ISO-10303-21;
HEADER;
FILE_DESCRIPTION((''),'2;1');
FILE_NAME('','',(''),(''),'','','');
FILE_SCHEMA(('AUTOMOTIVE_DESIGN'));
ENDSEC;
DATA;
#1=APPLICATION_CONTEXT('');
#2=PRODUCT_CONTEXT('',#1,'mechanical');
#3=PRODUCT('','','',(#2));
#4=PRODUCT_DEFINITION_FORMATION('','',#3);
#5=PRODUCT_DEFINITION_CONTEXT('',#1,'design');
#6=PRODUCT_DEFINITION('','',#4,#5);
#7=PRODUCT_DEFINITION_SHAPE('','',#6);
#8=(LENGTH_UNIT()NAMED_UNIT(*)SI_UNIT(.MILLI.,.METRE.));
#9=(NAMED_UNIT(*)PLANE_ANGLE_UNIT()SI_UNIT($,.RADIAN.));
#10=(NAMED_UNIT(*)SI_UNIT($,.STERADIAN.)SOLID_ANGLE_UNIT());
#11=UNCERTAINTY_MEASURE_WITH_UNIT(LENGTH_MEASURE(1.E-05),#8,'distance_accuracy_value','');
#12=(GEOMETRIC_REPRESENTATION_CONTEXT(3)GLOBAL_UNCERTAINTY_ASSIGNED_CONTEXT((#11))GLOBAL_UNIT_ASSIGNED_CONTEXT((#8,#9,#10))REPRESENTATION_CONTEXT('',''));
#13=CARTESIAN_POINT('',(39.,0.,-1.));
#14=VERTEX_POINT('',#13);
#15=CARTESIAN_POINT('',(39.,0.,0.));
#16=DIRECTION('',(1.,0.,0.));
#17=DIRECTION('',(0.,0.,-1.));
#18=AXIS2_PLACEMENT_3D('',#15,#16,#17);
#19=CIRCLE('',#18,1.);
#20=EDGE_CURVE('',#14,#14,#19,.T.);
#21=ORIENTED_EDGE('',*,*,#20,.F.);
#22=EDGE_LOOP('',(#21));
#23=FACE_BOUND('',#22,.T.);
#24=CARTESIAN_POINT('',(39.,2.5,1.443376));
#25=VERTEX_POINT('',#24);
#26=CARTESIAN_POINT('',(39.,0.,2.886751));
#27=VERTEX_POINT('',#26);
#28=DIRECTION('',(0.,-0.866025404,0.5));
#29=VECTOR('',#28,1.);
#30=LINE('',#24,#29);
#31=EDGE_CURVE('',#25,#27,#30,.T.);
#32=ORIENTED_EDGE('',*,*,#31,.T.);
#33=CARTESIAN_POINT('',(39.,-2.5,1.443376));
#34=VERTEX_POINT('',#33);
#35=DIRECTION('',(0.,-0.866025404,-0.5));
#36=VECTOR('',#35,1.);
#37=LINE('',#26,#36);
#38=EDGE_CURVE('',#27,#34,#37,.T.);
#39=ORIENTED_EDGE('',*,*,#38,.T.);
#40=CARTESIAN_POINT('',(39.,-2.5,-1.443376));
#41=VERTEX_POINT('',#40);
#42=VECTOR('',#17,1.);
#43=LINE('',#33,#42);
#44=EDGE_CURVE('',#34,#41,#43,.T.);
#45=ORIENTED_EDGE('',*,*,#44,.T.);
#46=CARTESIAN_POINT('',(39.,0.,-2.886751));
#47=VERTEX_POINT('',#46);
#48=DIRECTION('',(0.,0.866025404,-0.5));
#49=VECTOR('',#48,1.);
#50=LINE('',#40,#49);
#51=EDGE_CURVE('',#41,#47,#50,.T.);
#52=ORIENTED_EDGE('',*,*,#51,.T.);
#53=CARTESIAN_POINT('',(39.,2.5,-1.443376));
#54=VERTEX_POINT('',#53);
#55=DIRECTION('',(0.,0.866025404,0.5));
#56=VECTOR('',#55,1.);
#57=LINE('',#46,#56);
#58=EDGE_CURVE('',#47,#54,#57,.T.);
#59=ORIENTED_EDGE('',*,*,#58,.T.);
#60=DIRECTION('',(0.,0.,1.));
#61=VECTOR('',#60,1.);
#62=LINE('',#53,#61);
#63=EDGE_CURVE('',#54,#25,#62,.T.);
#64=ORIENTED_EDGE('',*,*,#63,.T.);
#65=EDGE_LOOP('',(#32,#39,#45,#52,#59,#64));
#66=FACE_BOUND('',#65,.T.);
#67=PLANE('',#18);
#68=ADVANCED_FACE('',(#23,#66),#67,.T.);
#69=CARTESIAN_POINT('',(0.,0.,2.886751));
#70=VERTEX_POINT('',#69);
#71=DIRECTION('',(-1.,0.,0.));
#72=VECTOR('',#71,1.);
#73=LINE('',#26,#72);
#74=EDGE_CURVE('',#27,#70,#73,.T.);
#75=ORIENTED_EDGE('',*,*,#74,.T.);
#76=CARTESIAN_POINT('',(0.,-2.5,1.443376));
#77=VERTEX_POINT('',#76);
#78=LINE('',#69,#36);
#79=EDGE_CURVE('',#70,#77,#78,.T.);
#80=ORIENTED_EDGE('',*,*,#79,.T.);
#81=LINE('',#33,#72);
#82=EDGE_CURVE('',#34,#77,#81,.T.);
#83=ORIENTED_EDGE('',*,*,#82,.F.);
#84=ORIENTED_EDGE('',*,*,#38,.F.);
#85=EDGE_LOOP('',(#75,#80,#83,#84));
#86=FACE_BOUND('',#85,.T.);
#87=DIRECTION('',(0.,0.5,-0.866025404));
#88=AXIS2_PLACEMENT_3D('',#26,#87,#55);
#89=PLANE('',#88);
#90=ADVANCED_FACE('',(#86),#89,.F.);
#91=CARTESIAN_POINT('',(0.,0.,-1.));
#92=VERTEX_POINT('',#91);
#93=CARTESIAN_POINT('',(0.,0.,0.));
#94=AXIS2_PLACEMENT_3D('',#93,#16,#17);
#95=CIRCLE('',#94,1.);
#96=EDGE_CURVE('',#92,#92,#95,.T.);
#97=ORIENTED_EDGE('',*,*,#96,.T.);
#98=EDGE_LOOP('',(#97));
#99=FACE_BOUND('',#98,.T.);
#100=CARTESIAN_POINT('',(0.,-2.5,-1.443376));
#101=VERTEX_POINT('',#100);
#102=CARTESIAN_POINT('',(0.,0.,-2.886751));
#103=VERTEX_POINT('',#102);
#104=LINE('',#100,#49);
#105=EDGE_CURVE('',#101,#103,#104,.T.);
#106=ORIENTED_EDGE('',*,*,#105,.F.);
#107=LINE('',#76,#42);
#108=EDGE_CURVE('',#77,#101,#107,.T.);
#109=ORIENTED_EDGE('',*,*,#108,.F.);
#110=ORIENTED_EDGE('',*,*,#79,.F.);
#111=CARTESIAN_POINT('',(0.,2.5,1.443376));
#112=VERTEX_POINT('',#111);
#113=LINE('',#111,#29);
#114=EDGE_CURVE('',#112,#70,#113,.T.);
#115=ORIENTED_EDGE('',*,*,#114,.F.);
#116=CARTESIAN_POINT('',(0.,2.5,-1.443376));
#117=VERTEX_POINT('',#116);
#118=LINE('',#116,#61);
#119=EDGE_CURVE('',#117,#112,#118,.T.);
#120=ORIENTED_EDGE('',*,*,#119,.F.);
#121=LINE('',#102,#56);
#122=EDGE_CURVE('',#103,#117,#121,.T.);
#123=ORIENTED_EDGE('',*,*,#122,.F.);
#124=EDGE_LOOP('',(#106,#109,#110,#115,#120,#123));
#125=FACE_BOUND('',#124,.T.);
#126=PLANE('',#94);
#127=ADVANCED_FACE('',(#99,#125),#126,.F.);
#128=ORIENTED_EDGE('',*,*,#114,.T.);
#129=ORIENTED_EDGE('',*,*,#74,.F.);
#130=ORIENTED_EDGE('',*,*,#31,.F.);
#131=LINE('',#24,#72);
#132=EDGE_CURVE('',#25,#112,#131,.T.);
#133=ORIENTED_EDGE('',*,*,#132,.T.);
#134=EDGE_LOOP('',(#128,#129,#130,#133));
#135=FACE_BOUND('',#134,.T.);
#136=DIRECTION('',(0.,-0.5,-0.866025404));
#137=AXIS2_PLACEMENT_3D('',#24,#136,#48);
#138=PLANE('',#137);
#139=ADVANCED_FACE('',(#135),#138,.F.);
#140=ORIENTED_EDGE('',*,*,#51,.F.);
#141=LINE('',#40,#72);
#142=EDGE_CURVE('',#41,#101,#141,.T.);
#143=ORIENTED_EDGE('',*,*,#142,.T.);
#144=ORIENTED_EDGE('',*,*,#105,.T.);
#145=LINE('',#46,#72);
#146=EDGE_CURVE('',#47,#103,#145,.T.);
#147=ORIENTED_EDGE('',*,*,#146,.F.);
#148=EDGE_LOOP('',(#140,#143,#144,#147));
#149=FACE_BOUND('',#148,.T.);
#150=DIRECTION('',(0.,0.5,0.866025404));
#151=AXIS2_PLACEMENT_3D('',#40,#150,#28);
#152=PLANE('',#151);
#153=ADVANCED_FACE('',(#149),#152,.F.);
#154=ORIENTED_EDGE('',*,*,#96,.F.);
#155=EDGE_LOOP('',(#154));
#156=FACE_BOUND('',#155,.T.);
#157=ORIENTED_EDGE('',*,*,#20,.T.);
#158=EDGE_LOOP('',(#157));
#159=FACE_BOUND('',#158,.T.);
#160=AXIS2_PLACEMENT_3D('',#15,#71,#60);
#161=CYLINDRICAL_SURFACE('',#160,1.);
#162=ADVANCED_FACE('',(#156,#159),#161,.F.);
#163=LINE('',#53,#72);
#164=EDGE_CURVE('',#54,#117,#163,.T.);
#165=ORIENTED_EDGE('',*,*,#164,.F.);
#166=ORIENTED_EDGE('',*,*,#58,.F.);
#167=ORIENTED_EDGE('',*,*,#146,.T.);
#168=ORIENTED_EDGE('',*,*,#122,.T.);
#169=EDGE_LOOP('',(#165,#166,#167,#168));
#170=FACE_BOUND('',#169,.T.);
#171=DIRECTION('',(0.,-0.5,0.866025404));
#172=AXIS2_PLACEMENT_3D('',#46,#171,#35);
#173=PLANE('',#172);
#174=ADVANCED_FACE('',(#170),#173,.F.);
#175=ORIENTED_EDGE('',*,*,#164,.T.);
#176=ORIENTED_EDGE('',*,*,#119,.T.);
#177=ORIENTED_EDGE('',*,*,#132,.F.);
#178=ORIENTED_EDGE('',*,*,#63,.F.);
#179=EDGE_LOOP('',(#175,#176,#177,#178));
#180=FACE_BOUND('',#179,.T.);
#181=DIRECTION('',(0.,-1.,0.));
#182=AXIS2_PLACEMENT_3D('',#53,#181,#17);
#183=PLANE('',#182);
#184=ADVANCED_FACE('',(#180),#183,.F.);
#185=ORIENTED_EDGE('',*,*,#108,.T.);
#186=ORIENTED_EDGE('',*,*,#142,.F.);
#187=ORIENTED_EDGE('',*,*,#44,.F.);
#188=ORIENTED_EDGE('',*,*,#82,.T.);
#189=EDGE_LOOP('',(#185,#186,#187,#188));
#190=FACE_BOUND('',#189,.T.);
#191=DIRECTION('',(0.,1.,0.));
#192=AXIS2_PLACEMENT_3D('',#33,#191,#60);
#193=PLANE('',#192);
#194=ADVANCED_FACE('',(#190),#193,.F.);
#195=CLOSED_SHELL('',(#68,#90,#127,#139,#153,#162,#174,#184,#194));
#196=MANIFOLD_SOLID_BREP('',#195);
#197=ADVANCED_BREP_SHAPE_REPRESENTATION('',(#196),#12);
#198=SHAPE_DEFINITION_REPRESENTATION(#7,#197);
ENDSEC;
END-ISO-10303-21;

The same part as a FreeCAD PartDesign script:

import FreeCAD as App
import Part
import Sketcher
from FreeCAD import Vector
Q = App.Units.Quantity

doc = App.newDocument("Part")
body = doc.addObject("PartDesign::Body", "Body")

sketch1 = body.newObject("Sketcher::SketchObject", "Sketch")
sketch1.AttachmentSupport = (doc.getObject("YZ_Plane"), [""])
sketch1.MapMode = "FlatFace"
sketch1.addGeometry([
    Part.LineSegment(Vector(0, -2.9, 0), Vector(2.5, -1.4, 0)),
    Part.LineSegment(Vector(2.5, -1.4, 0), Vector(2.5, 1.4, 0)),
    Part.LineSegment(Vector(2.5, 1.4, 0), Vector(0, 2.9, 0)),
    Part.LineSegment(Vector(0, 2.9, 0), Vector(-2.5, 1.4, 0)),
    Part.LineSegment(Vector(-2.5, 1.4, 0), Vector(-2.5, -1.4, 0)),
    Part.LineSegment(Vector(-2.5, -1.4, 0), Vector(0, -2.9, 0)),
    Part.Circle(Vector(0, 0, 0), Vector(0, 0, 1), 1),
], False)
sketch1.addConstraint([
    Sketcher.Constraint("Coincident", 0, 2, 1, 1),
    Sketcher.Constraint("Coincident", 1, 2, 2, 1),
    Sketcher.Constraint("Coincident", 2, 2, 3, 1),
    Sketcher.Constraint("Coincident", 3, 2, 4, 1),
    Sketcher.Constraint("Coincident", 4, 2, 5, 1),
    Sketcher.Constraint("Coincident", 5, 2, 0, 1),
    Sketcher.Constraint("Vertical", 1),
    Sketcher.Constraint("Vertical", 4),
    Sketcher.Constraint("Coincident", 6, 3, -1, 1),
    Sketcher.Constraint("Symmetric", 0, 2, 3, 2, -1, 1),
    Sketcher.Constraint("Symmetric", 2, 2, 5, 2, -1, 1),
    Sketcher.Constraint("PointOnObject", 2, 2, -2),
    Sketcher.Constraint("Parallel", 2, 5),
    Sketcher.Constraint("Horizontal", 1, 2, 3, 2),
    Sketcher.Constraint("Diameter", 6, 2.0),
    Sketcher.Constraint("Angle", 0, Q("30 deg")),
    Sketcher.Constraint("DistanceX", 3, 2, 1, 2, 5.0),
    Sketcher.Constraint("DistanceY", 1, 1, 1, 2, 2.886751),
])
pad1 = body.newObject("PartDesign::Pad", "Pad")
pad1.Profile = sketch1
pad1.Length = 39

doc.recompute()
